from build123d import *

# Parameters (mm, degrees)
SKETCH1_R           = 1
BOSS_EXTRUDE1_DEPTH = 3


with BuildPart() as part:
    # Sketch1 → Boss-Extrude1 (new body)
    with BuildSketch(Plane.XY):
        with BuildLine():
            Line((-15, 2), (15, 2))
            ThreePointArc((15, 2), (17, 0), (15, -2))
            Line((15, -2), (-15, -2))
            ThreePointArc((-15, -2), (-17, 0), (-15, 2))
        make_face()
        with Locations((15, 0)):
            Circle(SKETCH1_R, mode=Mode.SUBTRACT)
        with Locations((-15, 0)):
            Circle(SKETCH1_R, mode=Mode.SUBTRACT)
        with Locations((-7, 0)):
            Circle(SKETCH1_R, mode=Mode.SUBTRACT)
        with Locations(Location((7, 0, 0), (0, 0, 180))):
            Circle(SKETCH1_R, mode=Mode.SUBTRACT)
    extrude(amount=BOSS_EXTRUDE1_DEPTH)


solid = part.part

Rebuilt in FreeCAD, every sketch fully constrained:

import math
import FreeCAD as App
import Part
import Sketcher
Q = App.Units.Quantity

doc = App.newDocument("Part")
body = doc.addObject("PartDesign::Body", "Body")

# Sketch on XY plane
sketch1 = body.newObject("Sketcher::SketchObject", "Sketch")
sketch1.AttachmentSupport = (doc.getObject("XY_Plane"), [""])
sketch1.MapMode = "FlatFace"
sketch1.addGeometry(Part.LineSegment(App.Vector(15, 2, 0), App.Vector(-15, 2, 0)), False)
sketch1.addGeometry(Part.ArcOfCircle(Part.Circle(App.Vector(-15, 0, 0), App.Vector(0, 0, 1), 2), math.radians(90), math.radians(270)), False)
sketch1.addGeometry(Part.LineSegment(App.Vector(-15, -2, 0), App.Vector(15, -2, 0)), False)
sketch1.addGeometry(Part.ArcOfCircle(Part.Circle(App.Vector(15, 0, 0), App.Vector(0, 0, 1), 2), math.radians(-90), math.radians(90)), False)
sketch1.addGeometry(Part.Circle(App.Vector(15, 0, 0), App.Vector(0, 0, 1), 1), False)
sketch1.addGeometry(Part.Circle(App.Vector(7, 0, 0), App.Vector(0, 0, 1), 1), False)
sketch1.addGeometry(Part.Circle(App.Vector(-7, 0, 0), App.Vector(0, 0, 1), 1), False)
sketch1.addGeometry(Part.Circle(App.Vector(-15, 0, 0), App.Vector(0, 0, 1), 1), False)
sketch1.addConstraint(Sketcher.Constraint("Tangent", 0, 2, 1, 1))
sketch1.addConstraint(Sketcher.Constraint("Tangent", 1, 2, 2, 1))
sketch1.addConstraint(Sketcher.Constraint("Tangent", 2, 2, 3, 1))
sketch1.addConstraint(Sketcher.Constraint("Tangent", 3, 2, 0, 1))
sketch1.addConstraint(Sketcher.Constraint("Horizontal", 0))
sketch1.addConstraint(Sketcher.Constraint("Horizontal", 2))
sketch1.addConstraint(Sketcher.Constraint("Coincident", 4, 3, 3, 3))
sketch1.addConstraint(Sketcher.Constraint("Coincident", 7, 3, 1, 3))
sketch1.addConstraint(Sketcher.Constraint("Equal", 4, 5))
sketch1.addConstraint(Sketcher.Constraint("Equal", 5, 6))
sketch1.addConstraint(Sketcher.Constraint("Equal", 6, 7))
sketch1.addConstraint(Sketcher.Constraint("Symmetric", 1, 3, 3, 3, -1, 1))
sketch1.addConstraint(Sketcher.Constraint("Symmetric", 5, 3, 6, 3, -1, 1))
sketch1.addConstraint(Sketcher.Constraint("PointOnObject", 5, 3, -1))
sketch1.addConstraint(Sketcher.Constraint("Diameter", 4, Q("2 mm")))
sketch1.addConstraint(Sketcher.Constraint("Radius", 1, Q("2 mm")))
sketch1.addConstraint(Sketcher.Constraint("DistanceX", 0, 2, 0, 1, Q("30 mm")))
sketch1.addConstraint(Sketcher.Constraint("DistanceX", -1, 1, 5, 3, Q("7 mm")))
pad1 = body.newObject("PartDesign::Pad", "Pad")
pad1.Profile = sketch1
pad1.Length = 3

doc.recompute()
